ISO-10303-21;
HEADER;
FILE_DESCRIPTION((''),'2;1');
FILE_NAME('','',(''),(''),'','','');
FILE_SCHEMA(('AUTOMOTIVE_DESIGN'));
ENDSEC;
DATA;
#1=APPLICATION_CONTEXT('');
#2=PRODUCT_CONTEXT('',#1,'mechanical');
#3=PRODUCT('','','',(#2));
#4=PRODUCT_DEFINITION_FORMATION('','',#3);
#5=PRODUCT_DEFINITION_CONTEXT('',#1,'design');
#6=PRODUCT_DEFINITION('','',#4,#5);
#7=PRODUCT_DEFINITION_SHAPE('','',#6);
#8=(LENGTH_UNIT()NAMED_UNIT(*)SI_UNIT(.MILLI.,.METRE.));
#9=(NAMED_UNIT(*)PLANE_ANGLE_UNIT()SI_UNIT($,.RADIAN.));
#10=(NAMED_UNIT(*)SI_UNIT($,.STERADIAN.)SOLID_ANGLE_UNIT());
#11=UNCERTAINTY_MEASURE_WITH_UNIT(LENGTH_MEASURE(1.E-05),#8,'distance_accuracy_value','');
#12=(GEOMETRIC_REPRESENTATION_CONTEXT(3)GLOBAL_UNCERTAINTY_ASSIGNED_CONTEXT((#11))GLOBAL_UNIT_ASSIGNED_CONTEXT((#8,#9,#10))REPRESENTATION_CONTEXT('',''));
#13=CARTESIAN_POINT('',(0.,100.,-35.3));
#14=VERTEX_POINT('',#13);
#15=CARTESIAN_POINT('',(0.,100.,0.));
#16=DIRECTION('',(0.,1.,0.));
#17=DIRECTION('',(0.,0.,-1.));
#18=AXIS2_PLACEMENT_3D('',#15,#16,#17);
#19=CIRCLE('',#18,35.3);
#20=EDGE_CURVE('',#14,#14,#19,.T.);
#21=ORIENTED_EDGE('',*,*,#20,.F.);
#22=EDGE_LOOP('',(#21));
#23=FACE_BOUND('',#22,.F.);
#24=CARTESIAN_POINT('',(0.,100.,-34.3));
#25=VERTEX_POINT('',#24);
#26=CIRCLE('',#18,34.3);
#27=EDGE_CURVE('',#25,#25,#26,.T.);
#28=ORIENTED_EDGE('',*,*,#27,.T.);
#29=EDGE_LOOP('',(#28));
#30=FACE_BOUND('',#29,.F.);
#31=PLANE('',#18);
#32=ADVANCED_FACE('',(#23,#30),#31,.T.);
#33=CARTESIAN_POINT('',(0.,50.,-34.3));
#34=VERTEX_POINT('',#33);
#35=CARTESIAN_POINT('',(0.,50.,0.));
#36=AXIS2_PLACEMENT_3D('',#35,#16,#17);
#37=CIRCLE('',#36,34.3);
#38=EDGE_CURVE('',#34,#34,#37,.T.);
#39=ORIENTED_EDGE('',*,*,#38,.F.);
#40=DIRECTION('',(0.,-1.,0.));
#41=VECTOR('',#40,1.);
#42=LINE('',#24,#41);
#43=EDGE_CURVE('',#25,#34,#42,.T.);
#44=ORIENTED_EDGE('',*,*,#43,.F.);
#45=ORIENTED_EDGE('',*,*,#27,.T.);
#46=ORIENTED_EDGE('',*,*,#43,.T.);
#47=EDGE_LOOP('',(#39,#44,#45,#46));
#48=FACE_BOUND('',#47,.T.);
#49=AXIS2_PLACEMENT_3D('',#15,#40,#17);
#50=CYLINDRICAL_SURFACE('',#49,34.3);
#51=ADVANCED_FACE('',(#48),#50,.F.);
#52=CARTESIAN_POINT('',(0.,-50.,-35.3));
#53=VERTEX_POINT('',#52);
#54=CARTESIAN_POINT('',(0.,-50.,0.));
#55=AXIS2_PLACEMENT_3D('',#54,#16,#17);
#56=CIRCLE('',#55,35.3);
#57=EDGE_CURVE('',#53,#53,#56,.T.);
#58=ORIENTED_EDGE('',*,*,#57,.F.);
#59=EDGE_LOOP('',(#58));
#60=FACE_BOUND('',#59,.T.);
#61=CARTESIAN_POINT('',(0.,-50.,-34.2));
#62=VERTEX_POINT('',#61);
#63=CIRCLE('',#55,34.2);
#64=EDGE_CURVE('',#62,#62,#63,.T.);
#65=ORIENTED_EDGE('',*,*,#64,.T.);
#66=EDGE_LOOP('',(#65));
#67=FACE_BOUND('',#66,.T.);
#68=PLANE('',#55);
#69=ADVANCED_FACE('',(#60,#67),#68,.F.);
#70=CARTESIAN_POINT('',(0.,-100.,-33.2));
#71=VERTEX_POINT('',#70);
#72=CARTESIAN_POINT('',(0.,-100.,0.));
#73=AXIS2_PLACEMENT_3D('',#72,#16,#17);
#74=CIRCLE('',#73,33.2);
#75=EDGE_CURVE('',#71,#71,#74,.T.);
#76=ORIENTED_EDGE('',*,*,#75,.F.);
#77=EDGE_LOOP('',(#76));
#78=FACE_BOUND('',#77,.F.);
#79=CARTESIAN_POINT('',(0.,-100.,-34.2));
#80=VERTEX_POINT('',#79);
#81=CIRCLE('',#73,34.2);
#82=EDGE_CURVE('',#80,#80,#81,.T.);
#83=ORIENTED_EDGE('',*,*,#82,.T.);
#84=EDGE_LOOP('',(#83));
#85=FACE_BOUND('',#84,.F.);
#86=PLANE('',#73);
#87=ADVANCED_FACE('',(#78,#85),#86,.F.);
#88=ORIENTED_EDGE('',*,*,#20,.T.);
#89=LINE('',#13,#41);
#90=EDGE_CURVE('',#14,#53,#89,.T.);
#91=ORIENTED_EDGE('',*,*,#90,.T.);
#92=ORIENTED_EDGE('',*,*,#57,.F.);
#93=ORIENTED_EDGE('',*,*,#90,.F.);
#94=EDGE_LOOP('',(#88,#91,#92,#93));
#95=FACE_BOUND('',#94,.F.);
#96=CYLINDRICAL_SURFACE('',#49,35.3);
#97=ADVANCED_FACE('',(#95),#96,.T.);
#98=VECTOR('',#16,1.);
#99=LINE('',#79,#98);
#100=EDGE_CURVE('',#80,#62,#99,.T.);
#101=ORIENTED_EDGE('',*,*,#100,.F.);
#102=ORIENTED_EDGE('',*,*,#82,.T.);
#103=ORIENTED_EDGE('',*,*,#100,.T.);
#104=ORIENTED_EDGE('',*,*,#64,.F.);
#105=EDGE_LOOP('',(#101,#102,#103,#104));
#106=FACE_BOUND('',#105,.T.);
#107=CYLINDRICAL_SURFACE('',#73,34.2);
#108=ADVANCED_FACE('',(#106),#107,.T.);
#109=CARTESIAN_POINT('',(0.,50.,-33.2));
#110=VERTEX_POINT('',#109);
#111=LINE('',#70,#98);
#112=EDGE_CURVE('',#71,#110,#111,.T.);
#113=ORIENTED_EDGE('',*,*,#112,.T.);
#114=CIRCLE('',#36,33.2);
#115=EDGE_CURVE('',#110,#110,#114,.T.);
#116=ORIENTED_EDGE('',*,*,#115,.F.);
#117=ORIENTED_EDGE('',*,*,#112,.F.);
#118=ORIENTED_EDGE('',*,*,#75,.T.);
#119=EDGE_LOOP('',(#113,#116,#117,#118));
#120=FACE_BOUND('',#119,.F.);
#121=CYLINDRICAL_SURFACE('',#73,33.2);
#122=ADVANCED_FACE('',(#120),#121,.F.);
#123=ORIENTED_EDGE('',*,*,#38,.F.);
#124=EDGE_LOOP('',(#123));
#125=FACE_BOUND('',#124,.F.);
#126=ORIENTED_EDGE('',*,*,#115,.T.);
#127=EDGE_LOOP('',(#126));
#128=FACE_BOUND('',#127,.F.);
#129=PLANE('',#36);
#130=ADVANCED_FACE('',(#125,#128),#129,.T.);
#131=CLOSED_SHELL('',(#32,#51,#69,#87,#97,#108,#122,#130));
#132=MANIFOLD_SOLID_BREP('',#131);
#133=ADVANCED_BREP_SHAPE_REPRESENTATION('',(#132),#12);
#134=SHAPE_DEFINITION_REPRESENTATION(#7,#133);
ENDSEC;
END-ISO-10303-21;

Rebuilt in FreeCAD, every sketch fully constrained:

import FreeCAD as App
import Part
import Sketcher
from FreeCAD import Vector


def add_polygon(sketch, points):
    """Adds a closed chain of lines whose ends are joined by coincident constraints."""
    first, n = sketch.GeometryCount, len(points)
    for a, b in zip(points, points[1:] + points[:1]):
        sketch.addGeometry(Part.LineSegment(App.Vector(*a, 0), App.Vector(*b, 0)), False)
    for i in range(n):
        sketch.addConstraint(Sketcher.Constraint("Coincident", first + i, 2, first + (i + 1) % n, 1))

doc = App.newDocument("Part")
params = doc.addObject("Spreadsheet::Sheet", "Params")
for row, (alias, value) in enumerate([
    ("sketch1_width", "50 mm"),
    ("sketch1_height", "1 mm"),
    ("revolution_angle", "360 deg"),
], start=1):
    params.set(f"A{row}", alias)
    params.set(f"B{row}", "=" + value)
    params.setAlias(f"B{row}", alias)

body = doc.addObject("PartDesign::Body", "Body")

# Sketch on YZ plane
sketch1 = body.newObject("Sketcher::SketchObject", "Sketch")
sketch1.AttachmentSupport = (doc.getObject("YZ_Plane"), [""])
sketch1.MapMode = "FlatFace"
add_polygon(sketch1, [(50, -33.2), (-100, -33.2), (-100, -34.2), (-50, -34.2), (-50, -35.3), (100, -35.3), (100, -34.3), (50, -34.3)])  # lines 0-7
sketch1.addConstraint([
    Sketcher.Constraint("Horizontal", 0),
    Sketcher.Constraint("Vertical", 1),
    Sketcher.Constraint("Horizontal", 2),
    Sketcher.Constraint("Vertical", 3),
    Sketcher.Constraint("Horizontal", 4),
    Sketcher.Constraint("Vertical", 5),
    Sketcher.Constraint("Horizontal", 6),
    Sketcher.Constraint("Vertical", 7),
    Sketcher.Constraint("Equal", 0, 4),
    Sketcher.Constraint("Equal", 1, 5),
    Sketcher.Constraint("DistanceX", 2, 1, 2, 2, 50.0),
    Sketcher.Constraint("DistanceY", 1, 2, 1, 1, 1.0),
    Sketcher.Constraint("DistanceX", 0, 2, -1, 1, 100.0),
    Sketcher.Constraint("DistanceX", -1, 1, 4, 2, 100.0),
    Sketcher.Constraint("DistanceY", 0, 2, -1, 1, 33.2),
    Sketcher.Constraint("DistanceY", 5, 2, -1, 1, 34.3),
])
sketch1.setExpression("Constraints[18]", "Params.sketch1_width")
sketch1.setExpression("Constraints[19]", "Params.sketch1_height")
revolution = body.newObject("PartDesign::Revolution", "Revolution")
revolution.Profile = sketch1
revolution.ReferenceAxis = (sketch1, ["H_Axis"])
revolution.setExpression("Angle", "Params.revolution_angle")

doc.recompute()
